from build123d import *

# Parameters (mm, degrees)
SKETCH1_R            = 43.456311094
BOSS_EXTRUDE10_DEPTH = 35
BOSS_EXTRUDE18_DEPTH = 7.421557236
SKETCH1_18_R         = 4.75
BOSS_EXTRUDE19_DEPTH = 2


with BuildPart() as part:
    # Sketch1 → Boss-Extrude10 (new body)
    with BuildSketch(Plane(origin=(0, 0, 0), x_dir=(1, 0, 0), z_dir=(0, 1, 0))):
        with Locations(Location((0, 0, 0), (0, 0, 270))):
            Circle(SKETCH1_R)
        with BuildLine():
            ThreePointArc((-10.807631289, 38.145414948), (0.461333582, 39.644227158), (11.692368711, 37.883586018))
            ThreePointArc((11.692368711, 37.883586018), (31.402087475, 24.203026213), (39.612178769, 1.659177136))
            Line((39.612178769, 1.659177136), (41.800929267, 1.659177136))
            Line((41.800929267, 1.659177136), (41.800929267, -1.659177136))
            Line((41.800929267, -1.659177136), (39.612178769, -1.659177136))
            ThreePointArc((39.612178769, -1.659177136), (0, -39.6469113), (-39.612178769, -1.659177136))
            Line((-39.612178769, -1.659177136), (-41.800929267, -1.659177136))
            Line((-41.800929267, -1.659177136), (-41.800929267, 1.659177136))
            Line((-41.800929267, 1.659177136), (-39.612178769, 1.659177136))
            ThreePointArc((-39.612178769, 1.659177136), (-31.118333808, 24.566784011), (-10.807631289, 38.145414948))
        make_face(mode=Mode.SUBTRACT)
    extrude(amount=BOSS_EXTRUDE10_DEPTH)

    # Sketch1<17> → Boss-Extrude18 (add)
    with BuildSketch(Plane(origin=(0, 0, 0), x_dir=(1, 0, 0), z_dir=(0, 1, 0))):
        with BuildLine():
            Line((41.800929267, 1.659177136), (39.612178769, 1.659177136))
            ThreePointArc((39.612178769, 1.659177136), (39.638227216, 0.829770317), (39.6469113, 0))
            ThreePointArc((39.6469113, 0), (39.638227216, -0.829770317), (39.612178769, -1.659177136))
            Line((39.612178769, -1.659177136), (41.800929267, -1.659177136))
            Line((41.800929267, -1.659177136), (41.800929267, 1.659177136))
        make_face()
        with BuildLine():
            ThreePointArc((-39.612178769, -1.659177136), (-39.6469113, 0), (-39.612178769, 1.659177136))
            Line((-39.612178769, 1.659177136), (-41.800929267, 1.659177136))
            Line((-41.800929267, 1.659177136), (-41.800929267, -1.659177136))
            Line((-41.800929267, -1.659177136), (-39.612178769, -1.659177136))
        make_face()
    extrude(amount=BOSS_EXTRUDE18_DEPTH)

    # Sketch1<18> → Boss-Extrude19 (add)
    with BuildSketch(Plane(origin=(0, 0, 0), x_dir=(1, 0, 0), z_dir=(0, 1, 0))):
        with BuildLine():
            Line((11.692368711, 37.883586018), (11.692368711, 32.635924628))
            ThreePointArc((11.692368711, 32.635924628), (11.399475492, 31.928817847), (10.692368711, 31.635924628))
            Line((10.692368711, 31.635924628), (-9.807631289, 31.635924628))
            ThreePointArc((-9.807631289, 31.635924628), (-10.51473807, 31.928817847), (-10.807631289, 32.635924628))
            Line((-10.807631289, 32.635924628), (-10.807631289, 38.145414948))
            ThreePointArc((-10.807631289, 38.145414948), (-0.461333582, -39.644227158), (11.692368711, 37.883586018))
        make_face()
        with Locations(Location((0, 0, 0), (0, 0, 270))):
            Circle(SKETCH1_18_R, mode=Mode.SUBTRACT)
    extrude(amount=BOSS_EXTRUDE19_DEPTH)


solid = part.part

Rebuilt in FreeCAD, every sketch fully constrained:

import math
import FreeCAD as App
import Part
import Sketcher

doc = App.newDocument("Part")
body = doc.addObject("PartDesign::Body", "Body")

# Sketch on XZ plane
sketch1 = body.newObject("Sketcher::SketchObject", "Sketch")
sketch1.AttachmentSupport = (doc.getObject("XZ_Plane"), [""])
sketch1.MapMode = "FlatFace"
sketch1.addGeometry([
    Part.Circle(App.Vector(0, 0, 0), App.Vector(0, 0, 1), 43.456311),  # 0
    Part.ArcOfCircle(Part.Circle(App.Vector(0, 0, 0), App.Vector(0, 0, 1), 39.646911), math.radians(-177.601538), math.radians(-105.818865)),  # 1
    Part.ArcOfCircle(Part.Circle(App.Vector(0, 0, 0), App.Vector(0, 0, 1), 39.646911), math.radians(-105.818865), math.radians(-72.847711)),  # 2
    Part.ArcOfCircle(Part.Circle(App.Vector(0, 0, 0), App.Vector(0, 0, 1), 39.646911), math.radians(-72.847711), math.radians(-2.398462)),  # 3
    Part.LineSegment(App.Vector(39.612179, -1.659177, 0), App.Vector(41.800929, -1.659177, 0)),  # 4
    Part.LineSegment(App.Vector(41.800929, -1.659177, 0), App.Vector(41.800929, 1.659177, 0)),  # 5
    Part.LineSegment(App.Vector(41.800929, 1.659177, 0), App.Vector(39.612179, 1.659177, 0)),  # 6
    Part.ArcOfCircle(Part.Circle(App.Vector(0, 0, 0), App.Vector(0, 0, 1), 39.646911), math.radians(2.398462), math.radians(177.601538)),  # 7
    Part.LineSegment(App.Vector(-39.612179, 1.659177, 0), App.Vector(-41.800929, 1.659177, 0)),  # 8
    Part.LineSegment(App.Vector(-41.800929, 1.659177, 0), App.Vector(-41.800929, -1.659177, 0)),  # 9
    Part.LineSegment(App.Vector(-41.800929, -1.659177, 0), App.Vector(-39.612179, -1.659177, 0)),  # 10
], False)
sketch1.addConstraint([
    Sketcher.Constraint("Tangent", 1, 2, 2, 1),
    Sketcher.Constraint("Tangent", 2, 2, 3, 1),
    Sketcher.Constraint("Coincident", 3, 2, 4, 1),
    Sketcher.Constraint("Coincident", 4, 2, 5, 1),
    Sketcher.Constraint("Coincident", 5, 2, 6, 1),
    Sketcher.Constraint("Coincident", 6, 2, 7, 1),
    Sketcher.Constraint("Coincident", 7, 2, 8, 1),
    Sketcher.Constraint("Coincident", 8, 2, 9, 1),
    Sketcher.Constraint("Coincident", 9, 2, 10, 1),
    Sketcher.Constraint("Coincident", 10, 2, 1, 1),
    Sketcher.Constraint("Horizontal", 4),
    Sketcher.Constraint("Vertical", 5),
    Sketcher.Constraint("Horizontal", 6),
    Sketcher.Constraint("Horizontal", 8),
    Sketcher.Constraint("Vertical", 9),
    Sketcher.Constraint("Horizontal", 10),
    Sketcher.Constraint("Coincident", 0, 3, -1, 1),
    Sketcher.Constraint("Coincident", 1, 3, -1, 1),
    Sketcher.Constraint("Coincident", 3, 3, -1, 1),
    Sketcher.Constraint("Coincident", 7, 3, -1, 1),
    Sketcher.Constraint("Equal", 3, 7),
    Sketcher.Constraint("Symmetric", 4, 2, 8, 2, -1, 1),
    Sketcher.Constraint("Horizontal", 6, 2, 7, 2),
    Sketcher.Constraint("Horizontal", 4, 2, 9, 2),
    Sketcher.Constraint("DistanceX", 1, 2, 2, 2, 22.5),
    Sketcher.Constraint("Radius", 1, 39.646911),
    Sketcher.Constraint("Diameter", 0, 86.912622),
    Sketcher.Constraint("DistanceX", 4, 1, 4, 2, 2.18875),
    Sketcher.Constraint("DistanceY", 5, 1, 5, 2, 3.318354),
    Sketcher.Constraint("DistanceX", 1, 2, -1, 1, 10.807631),
])
pad1 = body.newObject("PartDesign::Pad", "Pad")
pad1.Profile = sketch1
pad1.Length = 35
pad1.Reversed = True

# Sketch on XZ plane
sketch2 = body.newObject("Sketcher::SketchObject", "Sketch001")
sketch2.AttachmentSupport = (doc.getObject("XZ_Plane"), [""])
sketch2.MapMode = "FlatFace"
sketch2.addGeometry([
    Part.LineSegment(App.Vector(41.800929, -1.659177, 0), App.Vector(39.612179, -1.659177, 0)),  # 0
    Part.ArcOfCircle(Part.Circle(App.Vector(0, 0, 0), App.Vector(0, 0, 1), 39.646912), math.radians(-2.398462), math.radians(0)),  # 1
    Part.ArcOfCircle(Part.Circle(App.Vector(0, 0, 0), App.Vector(0, 0, 1), 39.646912), math.radians(0), math.radians(2.398462)),  # 2
    Part.LineSegment(App.Vector(39.612179, 1.659177, 0), App.Vector(41.800929, 1.659177, 0)),  # 3
    Part.LineSegment(App.Vector(41.800929, 1.659177, 0), App.Vector(41.800929, -1.659177, 0)),  # 4
    Part.ArcOfCircle(Part.Circle(App.Vector(0, 0, 0), App.Vector(0, 0, 1), 39.646911), math.radians(177.601538), math.radians(182.398462)),  # 5
    Part.LineSegment(App.Vector(-39.612179, -1.659177, 0), App.Vector(-41.800929, -1.659177, 0)),  # 6
    Part.LineSegment(App.Vector(-41.800929, -1.659177, 0), App.Vector(-41.800929, 1.659177, 0)),  # 7
    Part.LineSegment(App.Vector(-41.800929, 1.659177, 0), App.Vector(-39.612179, 1.659177, 0)),  # 8
], False)
sketch2.addConstraint([
    Sketcher.Constraint("Coincident", 0, 2, 1, 1),
    Sketcher.Constraint("Tangent", 1, 2, 2, 1),
    Sketcher.Constraint("Coincident", 2, 2, 3, 1),
    Sketcher.Constraint("Coincident", 3, 2, 4, 1),
    Sketcher.Constraint("Coincident", 4, 2, 0, 1),
    Sketcher.Constraint("Coincident", 5, 2, 6, 1),
    Sketcher.Constraint("Coincident", 6, 2, 7, 1),
    Sketcher.Constraint("Coincident", 7, 2, 8, 1),
    Sketcher.Constraint("Coincident", 8, 2, 5, 1),
    Sketcher.Constraint("Horizontal", 0),
    Sketcher.Constraint("Horizontal", 3),
    Sketcher.Constraint("Vertical", 4),
    Sketcher.Constraint("Horizontal", 6),
    Sketcher.Constraint("Vertical", 7),
    Sketcher.Constraint("Horizontal", 8),
    Sketcher.Constraint("Coincident", 1, 3, -1, 1),
    Sketcher.Constraint("Coincident", 5, 3, -1, 1),
    Sketcher.Constraint("Equal", 1, 2),
    Sketcher.Constraint("Equal", 2, 5),
    Sketcher.Constraint("Symmetric", 3, 2, 6, 2, -1, 1),
    Sketcher.Constraint("PointOnObject", 1, 2, -1),
    Sketcher.Constraint("Horizontal", 4, 2, 5, 2),
    Sketcher.Constraint("Horizontal", 3, 2, 7, 2),
    Sketcher.Constraint("Radius", 1, 39.646912),
    Sketcher.Constraint("DistanceX", 0, 2, 0, 1, 2.18875),
    Sketcher.Constraint("DistanceY", 4, 2, 4, 1, 3.318354),
])
pad2 = body.newObject("PartDesign::Pad", "Pad001")
pad2.Profile = sketch2
pad2.Length = 7.421557
pad2.Reversed = True

# Sketch on XZ plane
sketch3 = body.newObject("Sketcher::SketchObject", "Sketch002")
sketch3.AttachmentSupport = (doc.getObject("XZ_Plane"), [""])
sketch3.MapMode = "FlatFace"
sketch3.addGeometry([
    Part.LineSegment(App.Vector(11.692369, -37.883586, 0), App.Vector(11.692369, -32.635925, 0)),  # 0
    Part.ArcOfCircle(Part.Circle(App.Vector(10.692369, -32.635925, 0), App.Vector(0, 0, 1), 1), math.radians(0), math.radians(90)),  # 1
    Part.LineSegment(App.Vector(10.692369, -31.635925, 0), App.Vector(-9.807631, -31.635925, 0)),  # 2
    Part.ArcOfCircle(Part.Circle(App.Vector(-9.807631, -32.635925, 0), App.Vector(0, 0, 1), 1), math.radians(90), math.radians(180)),  # 3
    Part.LineSegment(App.Vector(-10.807631, -32.635925, 0), App.Vector(-10.807631, -38.145415, 0)),  # 4
    Part.ArcOfCircle(Part.Circle(App.Vector(0, 0, 0), App.Vector(0, 0, 1), 39.646911), math.radians(-72.847711), math.radians(254.181135)),  # 5
    Part.Circle(App.Vector(0, 0, 0), App.Vector(0, 0, 1), 4.75),  # 6
], False)
sketch3.addConstraint([
    Sketcher.Constraint("Tangent", 0, 2, 1, 1),
    Sketcher.Constraint("Tangent", 1, 2, 2, 1),
    Sketcher.Constraint("Tangent", 2, 2, 3, 1),
    Sketcher.Constraint("Tangent", 3, 2, 4, 1),
    Sketcher.Constraint("Coincident", 4, 2, 5, 2),
    Sketcher.Constraint("Coincident", 5, 1, 0, 1),
    Sketcher.Constraint("Vertical", 0),
    Sketcher.Constraint("Horizontal", 2),
    Sketcher.Constraint("Vertical", 4),
    Sketcher.Constraint("Coincident", 5, 3, -1, 1),
    Sketcher.Constraint("Coincident", 6, 3, -1, 1),
    Sketcher.Constraint("Equal", 1, 3),
    Sketcher.Constraint("Radius", 1, 1.0),
    Sketcher.Constraint("Diameter", 6, 9.5),
    Sketcher.Constraint("DistanceX", 2, 2, 2, 1, 20.5),
    Sketcher.Constraint("Radius", 5, 39.646911),
    Sketcher.Constraint("DistanceY", 0, 1, 0, 2, 5.247661),
    Sketcher.Constraint("DistanceY", 4, 2, 4, 1, 5.50949),
])
pad3 = body.newObject("PartDesign::Pad", "Pad002")
pad3.Profile = sketch3
pad3.Length = 2
pad3.Reversed = True

doc.recompute()
